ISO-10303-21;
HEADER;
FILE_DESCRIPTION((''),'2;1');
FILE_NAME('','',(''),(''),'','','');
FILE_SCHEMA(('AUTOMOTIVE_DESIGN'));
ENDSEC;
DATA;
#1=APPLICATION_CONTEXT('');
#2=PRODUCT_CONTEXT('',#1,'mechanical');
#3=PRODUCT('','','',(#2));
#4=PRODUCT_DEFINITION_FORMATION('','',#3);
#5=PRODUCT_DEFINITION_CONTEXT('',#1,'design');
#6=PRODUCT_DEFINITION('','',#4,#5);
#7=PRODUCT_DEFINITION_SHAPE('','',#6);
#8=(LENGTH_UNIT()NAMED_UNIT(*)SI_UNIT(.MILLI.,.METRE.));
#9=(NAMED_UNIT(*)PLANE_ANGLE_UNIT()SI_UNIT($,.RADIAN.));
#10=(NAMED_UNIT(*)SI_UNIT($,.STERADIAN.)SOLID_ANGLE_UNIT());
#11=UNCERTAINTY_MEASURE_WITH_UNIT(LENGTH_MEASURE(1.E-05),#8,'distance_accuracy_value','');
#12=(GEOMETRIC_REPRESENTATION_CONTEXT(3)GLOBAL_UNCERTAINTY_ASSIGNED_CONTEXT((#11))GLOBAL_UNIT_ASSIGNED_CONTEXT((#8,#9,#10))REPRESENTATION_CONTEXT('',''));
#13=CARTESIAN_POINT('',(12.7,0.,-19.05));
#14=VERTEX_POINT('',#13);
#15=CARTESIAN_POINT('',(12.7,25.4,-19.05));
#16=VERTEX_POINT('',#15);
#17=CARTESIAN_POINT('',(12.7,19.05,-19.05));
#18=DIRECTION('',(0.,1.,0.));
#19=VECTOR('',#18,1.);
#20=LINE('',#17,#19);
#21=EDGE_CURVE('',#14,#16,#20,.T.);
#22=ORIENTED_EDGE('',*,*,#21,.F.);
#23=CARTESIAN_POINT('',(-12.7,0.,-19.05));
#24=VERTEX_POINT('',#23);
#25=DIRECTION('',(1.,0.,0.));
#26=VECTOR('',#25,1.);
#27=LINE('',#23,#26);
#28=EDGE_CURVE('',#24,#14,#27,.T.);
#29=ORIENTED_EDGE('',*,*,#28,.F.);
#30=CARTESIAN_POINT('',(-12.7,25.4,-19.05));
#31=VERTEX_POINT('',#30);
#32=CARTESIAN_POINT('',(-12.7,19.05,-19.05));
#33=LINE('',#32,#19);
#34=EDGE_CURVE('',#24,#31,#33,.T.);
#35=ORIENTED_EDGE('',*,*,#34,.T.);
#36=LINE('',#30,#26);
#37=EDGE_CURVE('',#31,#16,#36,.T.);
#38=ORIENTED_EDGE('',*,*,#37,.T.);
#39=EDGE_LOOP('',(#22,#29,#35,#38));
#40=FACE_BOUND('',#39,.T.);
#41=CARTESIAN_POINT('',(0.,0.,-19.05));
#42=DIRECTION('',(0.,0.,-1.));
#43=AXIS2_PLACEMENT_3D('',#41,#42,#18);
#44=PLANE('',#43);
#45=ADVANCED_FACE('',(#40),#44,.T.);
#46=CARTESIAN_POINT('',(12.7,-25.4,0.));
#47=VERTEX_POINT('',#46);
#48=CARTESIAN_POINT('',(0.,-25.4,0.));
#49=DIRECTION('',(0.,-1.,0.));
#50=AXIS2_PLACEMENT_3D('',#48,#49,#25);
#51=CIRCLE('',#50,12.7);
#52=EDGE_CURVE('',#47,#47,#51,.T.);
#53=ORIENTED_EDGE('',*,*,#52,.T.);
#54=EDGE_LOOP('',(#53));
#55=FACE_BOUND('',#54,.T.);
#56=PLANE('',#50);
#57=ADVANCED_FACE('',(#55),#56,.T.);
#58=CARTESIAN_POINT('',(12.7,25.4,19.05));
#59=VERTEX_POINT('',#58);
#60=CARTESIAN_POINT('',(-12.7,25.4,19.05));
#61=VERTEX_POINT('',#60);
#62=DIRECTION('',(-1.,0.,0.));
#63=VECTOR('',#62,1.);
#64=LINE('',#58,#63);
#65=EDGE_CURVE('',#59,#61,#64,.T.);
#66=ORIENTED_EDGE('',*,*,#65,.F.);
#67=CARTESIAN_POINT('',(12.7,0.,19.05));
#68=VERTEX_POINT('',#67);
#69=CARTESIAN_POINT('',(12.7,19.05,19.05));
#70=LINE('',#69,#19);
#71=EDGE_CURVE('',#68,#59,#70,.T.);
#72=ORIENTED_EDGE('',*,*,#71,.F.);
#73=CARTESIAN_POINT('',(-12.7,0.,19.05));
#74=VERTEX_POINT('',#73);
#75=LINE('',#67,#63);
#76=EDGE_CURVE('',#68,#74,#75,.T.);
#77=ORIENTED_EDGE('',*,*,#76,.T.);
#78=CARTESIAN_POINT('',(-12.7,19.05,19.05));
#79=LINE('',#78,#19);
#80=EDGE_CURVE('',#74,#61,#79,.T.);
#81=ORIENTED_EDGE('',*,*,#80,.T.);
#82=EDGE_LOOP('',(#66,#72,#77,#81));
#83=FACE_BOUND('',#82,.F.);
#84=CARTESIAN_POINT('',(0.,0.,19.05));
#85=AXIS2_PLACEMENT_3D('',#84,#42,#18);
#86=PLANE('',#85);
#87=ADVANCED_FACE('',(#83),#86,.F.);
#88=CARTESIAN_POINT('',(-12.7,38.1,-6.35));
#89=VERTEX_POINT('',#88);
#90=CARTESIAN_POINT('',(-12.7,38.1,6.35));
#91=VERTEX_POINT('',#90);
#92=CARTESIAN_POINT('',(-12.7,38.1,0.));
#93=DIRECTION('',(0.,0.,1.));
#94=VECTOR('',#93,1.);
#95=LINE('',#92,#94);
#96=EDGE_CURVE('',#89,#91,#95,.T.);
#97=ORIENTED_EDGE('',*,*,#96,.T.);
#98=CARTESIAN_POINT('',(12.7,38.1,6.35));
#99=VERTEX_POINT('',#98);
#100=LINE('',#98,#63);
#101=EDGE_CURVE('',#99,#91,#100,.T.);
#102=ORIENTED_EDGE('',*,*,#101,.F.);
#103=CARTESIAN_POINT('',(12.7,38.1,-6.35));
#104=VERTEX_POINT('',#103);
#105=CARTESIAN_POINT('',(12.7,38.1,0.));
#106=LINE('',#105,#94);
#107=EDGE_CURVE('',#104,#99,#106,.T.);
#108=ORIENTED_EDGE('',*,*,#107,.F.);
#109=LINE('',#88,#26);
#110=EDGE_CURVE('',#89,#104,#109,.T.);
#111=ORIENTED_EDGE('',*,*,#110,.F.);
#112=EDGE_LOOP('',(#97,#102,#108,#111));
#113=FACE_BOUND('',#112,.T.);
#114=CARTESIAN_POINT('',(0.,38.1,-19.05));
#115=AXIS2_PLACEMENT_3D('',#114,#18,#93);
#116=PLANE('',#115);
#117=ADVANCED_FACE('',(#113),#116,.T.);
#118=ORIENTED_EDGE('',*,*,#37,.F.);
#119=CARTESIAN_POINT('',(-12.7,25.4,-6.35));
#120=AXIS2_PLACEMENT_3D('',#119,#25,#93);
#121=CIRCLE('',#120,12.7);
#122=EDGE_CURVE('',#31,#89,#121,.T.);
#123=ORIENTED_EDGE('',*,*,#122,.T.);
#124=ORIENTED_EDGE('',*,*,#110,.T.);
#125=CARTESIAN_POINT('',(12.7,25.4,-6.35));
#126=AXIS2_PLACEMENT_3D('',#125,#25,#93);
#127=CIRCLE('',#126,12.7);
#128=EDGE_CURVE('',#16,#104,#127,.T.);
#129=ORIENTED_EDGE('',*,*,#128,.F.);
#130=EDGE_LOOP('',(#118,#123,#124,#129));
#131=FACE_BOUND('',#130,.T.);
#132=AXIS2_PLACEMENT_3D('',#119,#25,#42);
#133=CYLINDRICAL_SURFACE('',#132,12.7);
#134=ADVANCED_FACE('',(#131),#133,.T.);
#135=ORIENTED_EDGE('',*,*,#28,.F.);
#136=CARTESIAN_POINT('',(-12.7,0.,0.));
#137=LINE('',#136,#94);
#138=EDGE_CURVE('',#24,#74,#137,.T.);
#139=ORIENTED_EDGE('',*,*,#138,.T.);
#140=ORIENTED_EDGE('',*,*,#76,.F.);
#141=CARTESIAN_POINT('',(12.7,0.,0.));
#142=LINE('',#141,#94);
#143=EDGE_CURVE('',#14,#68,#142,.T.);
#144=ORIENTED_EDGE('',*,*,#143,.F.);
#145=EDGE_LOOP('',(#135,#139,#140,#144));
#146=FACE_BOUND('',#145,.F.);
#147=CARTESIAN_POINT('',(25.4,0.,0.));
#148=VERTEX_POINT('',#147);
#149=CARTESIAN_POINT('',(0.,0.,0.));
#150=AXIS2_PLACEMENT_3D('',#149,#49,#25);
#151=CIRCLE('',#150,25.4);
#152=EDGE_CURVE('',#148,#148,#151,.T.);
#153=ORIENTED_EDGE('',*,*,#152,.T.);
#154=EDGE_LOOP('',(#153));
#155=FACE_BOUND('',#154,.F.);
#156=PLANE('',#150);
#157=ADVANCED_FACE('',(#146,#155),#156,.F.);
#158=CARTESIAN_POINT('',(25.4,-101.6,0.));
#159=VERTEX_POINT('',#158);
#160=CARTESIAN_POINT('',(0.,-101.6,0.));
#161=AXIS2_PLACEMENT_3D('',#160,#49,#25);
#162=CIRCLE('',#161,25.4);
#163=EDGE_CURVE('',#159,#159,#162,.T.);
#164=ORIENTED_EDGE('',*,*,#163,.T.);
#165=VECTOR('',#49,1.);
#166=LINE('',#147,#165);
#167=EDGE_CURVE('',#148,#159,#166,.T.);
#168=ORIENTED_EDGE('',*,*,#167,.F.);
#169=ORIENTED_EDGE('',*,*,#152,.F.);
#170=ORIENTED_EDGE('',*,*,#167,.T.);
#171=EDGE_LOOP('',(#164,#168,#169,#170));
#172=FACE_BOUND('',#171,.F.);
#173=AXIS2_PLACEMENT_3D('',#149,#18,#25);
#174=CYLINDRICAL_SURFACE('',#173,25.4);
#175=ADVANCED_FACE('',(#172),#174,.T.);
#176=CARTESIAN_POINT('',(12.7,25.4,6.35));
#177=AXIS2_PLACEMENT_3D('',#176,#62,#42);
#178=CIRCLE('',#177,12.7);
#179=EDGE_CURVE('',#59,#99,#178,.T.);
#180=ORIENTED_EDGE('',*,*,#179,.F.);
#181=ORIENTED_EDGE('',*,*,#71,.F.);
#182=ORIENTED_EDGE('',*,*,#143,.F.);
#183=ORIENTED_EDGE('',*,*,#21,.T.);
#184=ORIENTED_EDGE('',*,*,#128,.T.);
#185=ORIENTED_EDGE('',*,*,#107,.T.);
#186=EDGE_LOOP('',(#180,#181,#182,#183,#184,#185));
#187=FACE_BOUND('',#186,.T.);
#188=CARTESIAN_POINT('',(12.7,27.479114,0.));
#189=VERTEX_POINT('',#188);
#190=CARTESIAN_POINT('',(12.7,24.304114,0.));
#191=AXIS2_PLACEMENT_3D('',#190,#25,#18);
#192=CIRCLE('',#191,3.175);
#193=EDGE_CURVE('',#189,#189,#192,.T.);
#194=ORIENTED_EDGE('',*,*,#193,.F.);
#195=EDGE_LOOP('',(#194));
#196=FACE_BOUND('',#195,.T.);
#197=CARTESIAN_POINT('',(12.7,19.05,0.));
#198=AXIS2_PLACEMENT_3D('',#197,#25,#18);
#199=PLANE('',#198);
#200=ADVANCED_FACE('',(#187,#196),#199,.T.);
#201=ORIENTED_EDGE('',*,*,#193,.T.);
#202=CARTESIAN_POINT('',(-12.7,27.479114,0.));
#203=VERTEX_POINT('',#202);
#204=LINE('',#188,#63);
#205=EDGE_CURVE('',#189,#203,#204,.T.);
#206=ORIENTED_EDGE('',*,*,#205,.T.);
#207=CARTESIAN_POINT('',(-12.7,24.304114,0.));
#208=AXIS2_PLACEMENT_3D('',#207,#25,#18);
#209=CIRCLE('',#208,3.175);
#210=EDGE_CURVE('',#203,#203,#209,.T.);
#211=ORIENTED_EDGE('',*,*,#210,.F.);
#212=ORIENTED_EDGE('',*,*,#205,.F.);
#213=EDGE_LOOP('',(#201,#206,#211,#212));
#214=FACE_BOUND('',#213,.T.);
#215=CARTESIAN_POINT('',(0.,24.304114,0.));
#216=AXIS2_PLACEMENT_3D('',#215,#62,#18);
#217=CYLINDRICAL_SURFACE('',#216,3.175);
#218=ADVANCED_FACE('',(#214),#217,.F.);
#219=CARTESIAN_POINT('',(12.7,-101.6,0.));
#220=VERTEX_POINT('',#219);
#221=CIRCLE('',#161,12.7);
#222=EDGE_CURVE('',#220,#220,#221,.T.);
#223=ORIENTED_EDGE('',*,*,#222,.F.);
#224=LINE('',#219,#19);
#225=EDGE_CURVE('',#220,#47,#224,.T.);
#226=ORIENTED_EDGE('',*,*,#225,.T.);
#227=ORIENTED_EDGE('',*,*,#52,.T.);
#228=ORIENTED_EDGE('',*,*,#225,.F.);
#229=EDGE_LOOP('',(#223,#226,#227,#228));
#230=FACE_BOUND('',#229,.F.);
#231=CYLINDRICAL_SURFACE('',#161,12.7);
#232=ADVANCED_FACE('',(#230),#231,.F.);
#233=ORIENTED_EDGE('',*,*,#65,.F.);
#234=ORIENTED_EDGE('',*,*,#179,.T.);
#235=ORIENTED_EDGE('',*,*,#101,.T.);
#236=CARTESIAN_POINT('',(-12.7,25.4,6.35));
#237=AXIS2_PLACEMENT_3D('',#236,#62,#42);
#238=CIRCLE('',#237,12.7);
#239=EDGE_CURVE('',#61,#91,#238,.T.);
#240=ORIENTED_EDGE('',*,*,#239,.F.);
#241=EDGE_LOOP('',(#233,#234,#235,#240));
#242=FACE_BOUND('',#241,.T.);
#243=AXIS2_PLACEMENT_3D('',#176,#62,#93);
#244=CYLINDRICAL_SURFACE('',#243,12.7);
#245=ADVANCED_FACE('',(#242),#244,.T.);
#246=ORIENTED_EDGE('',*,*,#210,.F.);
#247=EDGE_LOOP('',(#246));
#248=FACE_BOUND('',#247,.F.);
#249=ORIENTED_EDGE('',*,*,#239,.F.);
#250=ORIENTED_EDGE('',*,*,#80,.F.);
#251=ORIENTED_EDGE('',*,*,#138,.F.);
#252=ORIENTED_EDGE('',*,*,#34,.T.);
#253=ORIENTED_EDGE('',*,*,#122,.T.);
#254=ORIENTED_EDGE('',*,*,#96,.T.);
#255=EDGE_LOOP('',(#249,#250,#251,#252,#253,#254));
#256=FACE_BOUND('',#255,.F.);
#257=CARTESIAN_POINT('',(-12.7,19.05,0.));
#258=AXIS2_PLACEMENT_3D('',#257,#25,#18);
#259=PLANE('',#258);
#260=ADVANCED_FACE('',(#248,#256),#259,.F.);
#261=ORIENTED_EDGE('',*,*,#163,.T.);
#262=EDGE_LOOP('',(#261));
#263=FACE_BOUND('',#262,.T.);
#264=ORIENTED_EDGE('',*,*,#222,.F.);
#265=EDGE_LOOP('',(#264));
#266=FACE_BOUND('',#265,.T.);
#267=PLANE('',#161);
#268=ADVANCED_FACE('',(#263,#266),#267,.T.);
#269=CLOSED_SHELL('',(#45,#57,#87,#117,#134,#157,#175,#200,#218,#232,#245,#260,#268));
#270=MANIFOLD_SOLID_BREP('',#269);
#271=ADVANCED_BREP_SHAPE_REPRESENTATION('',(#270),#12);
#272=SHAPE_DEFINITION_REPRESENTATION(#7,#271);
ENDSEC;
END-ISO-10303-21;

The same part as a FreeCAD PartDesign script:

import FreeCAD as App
import Part
import Sketcher
from FreeCAD import Vector
Q = App.Units.Quantity


def edges_at(feature, points):
    """Names of the edges that pass closest to the given points."""
    edges = feature.Shape.Edges
    near = lambda p: min(range(len(edges)), key=lambda i: edges[i].distToShape(Part.Vertex(*p))[0])
    return sorted({f"Edge{near(p) + 1}" for p in points})


def add_polygon(sketch, points):
    """Adds a closed chain of lines whose ends are joined by coincident constraints."""
    first, n = sketch.GeometryCount, len(points)
    for a, b in zip(points, points[1:] + points[:1]):
        sketch.addGeometry(Part.LineSegment(App.Vector(*a, 0), App.Vector(*b, 0)), False)
    for i in range(n):
        sketch.addConstraint(Sketcher.Constraint("Coincident", first + i, 2, first + (i + 1) % n, 1))

doc = App.newDocument("Part")
body = doc.addObject("PartDesign::Body", "Body")

# Sketch on XZ plane
sketch1 = body.newObject("Sketcher::SketchObject", "Sketch")
sketch1.AttachmentSupport = (doc.getObject("XZ_Plane"), [""])
sketch1.MapMode = "FlatFace"
sketch1.addGeometry(Part.Circle(Vector(0, 0, 0), Vector(0, 0, 1), 25), False)
sketch1.addConstraint([
    Sketcher.Constraint("Coincident", 0, 3, -1, 1),
    Sketcher.Constraint("Diameter", 0, Q("2 in")),
])
pad1 = body.newObject("PartDesign::Pad", "Pad")
pad1.Profile = sketch1
pad1.Length = Q("4 in")

# Sketch on XZ plane
sketch2 = body.newObject("Sketcher::SketchObject", "Sketch001")
sketch2.AttachmentSupport = (doc.getObject("XZ_Plane"), [""])
sketch2.MapMode = "FlatFace"
sketch2.AttachmentOffset = App.Placement(Vector(0, 0, 4 * 25.4), App.Rotation())
sketch2.addGeometry(Part.Circle(Vector(0, 0, 0), Vector(0, 0, 1), 13), False)
sketch2.addConstraint([
    Sketcher.Constraint("Coincident", 0, 3, -1, 1),
    Sketcher.Constraint("Diameter", 0, Q("1 in")),
])
pocket1 = body.newObject("PartDesign::Pocket", "Pocket")
pocket1.Profile = sketch2
pocket1.Length = Q("3 in")

# Sketch on YZ plane
sketch3 = body.newObject("Sketcher::SketchObject", "Sketch002")
sketch3.AttachmentSupport = (doc.getObject("YZ_Plane"), [""])
sketch3.MapMode = "FlatFace"
add_polygon(sketch3, [(0, 19.1), (0, -19.1), (38.1, -19.1), (38.1, 19.1)])  # lines 0-3
sketch3.addGeometry(Part.Circle(Vector(24.3, 0, 0), Vector(0, 0, 1), 3.2), False)  # 4
sketch3.addConstraint([
    Sketcher.Constraint("Vertical", 0),
    Sketcher.Constraint("Horizontal", 1),
    Sketcher.Constraint("Vertical", 2),
    Sketcher.Constraint("Horizontal", 3),
    Sketcher.Constraint("Symmetric", 0, 2, 3, 2, -1, 1),
    Sketcher.Constraint("PointOnObject", 4, 3, -1),
    Sketcher.Constraint("Equal", 3, 0),
    Sketcher.Constraint("Diameter", 4, Q("0.25 in")),
    Sketcher.Constraint("DistanceX", 1, 1, 1, 2, Q("1.5 in")),
    Sketcher.Constraint("DistanceX", -1, 1, 4, 3, Q("24.304114 mm")),
])
pad2 = body.newObject("PartDesign::Pad", "Pad001")
pad2.Profile = sketch3
pad2.Length = Q("1 in")
pad2.Midplane = True
doc.recompute()

fillet = body.newObject("PartDesign::Fillet", "Fillet")
fillet.Base = (pad2, edges_at(pad2, [(0, 38.1, 19.05), (0, 38.1, -19.05)]))
fillet.Radius = Q("0.5 in")

doc.recompute()
